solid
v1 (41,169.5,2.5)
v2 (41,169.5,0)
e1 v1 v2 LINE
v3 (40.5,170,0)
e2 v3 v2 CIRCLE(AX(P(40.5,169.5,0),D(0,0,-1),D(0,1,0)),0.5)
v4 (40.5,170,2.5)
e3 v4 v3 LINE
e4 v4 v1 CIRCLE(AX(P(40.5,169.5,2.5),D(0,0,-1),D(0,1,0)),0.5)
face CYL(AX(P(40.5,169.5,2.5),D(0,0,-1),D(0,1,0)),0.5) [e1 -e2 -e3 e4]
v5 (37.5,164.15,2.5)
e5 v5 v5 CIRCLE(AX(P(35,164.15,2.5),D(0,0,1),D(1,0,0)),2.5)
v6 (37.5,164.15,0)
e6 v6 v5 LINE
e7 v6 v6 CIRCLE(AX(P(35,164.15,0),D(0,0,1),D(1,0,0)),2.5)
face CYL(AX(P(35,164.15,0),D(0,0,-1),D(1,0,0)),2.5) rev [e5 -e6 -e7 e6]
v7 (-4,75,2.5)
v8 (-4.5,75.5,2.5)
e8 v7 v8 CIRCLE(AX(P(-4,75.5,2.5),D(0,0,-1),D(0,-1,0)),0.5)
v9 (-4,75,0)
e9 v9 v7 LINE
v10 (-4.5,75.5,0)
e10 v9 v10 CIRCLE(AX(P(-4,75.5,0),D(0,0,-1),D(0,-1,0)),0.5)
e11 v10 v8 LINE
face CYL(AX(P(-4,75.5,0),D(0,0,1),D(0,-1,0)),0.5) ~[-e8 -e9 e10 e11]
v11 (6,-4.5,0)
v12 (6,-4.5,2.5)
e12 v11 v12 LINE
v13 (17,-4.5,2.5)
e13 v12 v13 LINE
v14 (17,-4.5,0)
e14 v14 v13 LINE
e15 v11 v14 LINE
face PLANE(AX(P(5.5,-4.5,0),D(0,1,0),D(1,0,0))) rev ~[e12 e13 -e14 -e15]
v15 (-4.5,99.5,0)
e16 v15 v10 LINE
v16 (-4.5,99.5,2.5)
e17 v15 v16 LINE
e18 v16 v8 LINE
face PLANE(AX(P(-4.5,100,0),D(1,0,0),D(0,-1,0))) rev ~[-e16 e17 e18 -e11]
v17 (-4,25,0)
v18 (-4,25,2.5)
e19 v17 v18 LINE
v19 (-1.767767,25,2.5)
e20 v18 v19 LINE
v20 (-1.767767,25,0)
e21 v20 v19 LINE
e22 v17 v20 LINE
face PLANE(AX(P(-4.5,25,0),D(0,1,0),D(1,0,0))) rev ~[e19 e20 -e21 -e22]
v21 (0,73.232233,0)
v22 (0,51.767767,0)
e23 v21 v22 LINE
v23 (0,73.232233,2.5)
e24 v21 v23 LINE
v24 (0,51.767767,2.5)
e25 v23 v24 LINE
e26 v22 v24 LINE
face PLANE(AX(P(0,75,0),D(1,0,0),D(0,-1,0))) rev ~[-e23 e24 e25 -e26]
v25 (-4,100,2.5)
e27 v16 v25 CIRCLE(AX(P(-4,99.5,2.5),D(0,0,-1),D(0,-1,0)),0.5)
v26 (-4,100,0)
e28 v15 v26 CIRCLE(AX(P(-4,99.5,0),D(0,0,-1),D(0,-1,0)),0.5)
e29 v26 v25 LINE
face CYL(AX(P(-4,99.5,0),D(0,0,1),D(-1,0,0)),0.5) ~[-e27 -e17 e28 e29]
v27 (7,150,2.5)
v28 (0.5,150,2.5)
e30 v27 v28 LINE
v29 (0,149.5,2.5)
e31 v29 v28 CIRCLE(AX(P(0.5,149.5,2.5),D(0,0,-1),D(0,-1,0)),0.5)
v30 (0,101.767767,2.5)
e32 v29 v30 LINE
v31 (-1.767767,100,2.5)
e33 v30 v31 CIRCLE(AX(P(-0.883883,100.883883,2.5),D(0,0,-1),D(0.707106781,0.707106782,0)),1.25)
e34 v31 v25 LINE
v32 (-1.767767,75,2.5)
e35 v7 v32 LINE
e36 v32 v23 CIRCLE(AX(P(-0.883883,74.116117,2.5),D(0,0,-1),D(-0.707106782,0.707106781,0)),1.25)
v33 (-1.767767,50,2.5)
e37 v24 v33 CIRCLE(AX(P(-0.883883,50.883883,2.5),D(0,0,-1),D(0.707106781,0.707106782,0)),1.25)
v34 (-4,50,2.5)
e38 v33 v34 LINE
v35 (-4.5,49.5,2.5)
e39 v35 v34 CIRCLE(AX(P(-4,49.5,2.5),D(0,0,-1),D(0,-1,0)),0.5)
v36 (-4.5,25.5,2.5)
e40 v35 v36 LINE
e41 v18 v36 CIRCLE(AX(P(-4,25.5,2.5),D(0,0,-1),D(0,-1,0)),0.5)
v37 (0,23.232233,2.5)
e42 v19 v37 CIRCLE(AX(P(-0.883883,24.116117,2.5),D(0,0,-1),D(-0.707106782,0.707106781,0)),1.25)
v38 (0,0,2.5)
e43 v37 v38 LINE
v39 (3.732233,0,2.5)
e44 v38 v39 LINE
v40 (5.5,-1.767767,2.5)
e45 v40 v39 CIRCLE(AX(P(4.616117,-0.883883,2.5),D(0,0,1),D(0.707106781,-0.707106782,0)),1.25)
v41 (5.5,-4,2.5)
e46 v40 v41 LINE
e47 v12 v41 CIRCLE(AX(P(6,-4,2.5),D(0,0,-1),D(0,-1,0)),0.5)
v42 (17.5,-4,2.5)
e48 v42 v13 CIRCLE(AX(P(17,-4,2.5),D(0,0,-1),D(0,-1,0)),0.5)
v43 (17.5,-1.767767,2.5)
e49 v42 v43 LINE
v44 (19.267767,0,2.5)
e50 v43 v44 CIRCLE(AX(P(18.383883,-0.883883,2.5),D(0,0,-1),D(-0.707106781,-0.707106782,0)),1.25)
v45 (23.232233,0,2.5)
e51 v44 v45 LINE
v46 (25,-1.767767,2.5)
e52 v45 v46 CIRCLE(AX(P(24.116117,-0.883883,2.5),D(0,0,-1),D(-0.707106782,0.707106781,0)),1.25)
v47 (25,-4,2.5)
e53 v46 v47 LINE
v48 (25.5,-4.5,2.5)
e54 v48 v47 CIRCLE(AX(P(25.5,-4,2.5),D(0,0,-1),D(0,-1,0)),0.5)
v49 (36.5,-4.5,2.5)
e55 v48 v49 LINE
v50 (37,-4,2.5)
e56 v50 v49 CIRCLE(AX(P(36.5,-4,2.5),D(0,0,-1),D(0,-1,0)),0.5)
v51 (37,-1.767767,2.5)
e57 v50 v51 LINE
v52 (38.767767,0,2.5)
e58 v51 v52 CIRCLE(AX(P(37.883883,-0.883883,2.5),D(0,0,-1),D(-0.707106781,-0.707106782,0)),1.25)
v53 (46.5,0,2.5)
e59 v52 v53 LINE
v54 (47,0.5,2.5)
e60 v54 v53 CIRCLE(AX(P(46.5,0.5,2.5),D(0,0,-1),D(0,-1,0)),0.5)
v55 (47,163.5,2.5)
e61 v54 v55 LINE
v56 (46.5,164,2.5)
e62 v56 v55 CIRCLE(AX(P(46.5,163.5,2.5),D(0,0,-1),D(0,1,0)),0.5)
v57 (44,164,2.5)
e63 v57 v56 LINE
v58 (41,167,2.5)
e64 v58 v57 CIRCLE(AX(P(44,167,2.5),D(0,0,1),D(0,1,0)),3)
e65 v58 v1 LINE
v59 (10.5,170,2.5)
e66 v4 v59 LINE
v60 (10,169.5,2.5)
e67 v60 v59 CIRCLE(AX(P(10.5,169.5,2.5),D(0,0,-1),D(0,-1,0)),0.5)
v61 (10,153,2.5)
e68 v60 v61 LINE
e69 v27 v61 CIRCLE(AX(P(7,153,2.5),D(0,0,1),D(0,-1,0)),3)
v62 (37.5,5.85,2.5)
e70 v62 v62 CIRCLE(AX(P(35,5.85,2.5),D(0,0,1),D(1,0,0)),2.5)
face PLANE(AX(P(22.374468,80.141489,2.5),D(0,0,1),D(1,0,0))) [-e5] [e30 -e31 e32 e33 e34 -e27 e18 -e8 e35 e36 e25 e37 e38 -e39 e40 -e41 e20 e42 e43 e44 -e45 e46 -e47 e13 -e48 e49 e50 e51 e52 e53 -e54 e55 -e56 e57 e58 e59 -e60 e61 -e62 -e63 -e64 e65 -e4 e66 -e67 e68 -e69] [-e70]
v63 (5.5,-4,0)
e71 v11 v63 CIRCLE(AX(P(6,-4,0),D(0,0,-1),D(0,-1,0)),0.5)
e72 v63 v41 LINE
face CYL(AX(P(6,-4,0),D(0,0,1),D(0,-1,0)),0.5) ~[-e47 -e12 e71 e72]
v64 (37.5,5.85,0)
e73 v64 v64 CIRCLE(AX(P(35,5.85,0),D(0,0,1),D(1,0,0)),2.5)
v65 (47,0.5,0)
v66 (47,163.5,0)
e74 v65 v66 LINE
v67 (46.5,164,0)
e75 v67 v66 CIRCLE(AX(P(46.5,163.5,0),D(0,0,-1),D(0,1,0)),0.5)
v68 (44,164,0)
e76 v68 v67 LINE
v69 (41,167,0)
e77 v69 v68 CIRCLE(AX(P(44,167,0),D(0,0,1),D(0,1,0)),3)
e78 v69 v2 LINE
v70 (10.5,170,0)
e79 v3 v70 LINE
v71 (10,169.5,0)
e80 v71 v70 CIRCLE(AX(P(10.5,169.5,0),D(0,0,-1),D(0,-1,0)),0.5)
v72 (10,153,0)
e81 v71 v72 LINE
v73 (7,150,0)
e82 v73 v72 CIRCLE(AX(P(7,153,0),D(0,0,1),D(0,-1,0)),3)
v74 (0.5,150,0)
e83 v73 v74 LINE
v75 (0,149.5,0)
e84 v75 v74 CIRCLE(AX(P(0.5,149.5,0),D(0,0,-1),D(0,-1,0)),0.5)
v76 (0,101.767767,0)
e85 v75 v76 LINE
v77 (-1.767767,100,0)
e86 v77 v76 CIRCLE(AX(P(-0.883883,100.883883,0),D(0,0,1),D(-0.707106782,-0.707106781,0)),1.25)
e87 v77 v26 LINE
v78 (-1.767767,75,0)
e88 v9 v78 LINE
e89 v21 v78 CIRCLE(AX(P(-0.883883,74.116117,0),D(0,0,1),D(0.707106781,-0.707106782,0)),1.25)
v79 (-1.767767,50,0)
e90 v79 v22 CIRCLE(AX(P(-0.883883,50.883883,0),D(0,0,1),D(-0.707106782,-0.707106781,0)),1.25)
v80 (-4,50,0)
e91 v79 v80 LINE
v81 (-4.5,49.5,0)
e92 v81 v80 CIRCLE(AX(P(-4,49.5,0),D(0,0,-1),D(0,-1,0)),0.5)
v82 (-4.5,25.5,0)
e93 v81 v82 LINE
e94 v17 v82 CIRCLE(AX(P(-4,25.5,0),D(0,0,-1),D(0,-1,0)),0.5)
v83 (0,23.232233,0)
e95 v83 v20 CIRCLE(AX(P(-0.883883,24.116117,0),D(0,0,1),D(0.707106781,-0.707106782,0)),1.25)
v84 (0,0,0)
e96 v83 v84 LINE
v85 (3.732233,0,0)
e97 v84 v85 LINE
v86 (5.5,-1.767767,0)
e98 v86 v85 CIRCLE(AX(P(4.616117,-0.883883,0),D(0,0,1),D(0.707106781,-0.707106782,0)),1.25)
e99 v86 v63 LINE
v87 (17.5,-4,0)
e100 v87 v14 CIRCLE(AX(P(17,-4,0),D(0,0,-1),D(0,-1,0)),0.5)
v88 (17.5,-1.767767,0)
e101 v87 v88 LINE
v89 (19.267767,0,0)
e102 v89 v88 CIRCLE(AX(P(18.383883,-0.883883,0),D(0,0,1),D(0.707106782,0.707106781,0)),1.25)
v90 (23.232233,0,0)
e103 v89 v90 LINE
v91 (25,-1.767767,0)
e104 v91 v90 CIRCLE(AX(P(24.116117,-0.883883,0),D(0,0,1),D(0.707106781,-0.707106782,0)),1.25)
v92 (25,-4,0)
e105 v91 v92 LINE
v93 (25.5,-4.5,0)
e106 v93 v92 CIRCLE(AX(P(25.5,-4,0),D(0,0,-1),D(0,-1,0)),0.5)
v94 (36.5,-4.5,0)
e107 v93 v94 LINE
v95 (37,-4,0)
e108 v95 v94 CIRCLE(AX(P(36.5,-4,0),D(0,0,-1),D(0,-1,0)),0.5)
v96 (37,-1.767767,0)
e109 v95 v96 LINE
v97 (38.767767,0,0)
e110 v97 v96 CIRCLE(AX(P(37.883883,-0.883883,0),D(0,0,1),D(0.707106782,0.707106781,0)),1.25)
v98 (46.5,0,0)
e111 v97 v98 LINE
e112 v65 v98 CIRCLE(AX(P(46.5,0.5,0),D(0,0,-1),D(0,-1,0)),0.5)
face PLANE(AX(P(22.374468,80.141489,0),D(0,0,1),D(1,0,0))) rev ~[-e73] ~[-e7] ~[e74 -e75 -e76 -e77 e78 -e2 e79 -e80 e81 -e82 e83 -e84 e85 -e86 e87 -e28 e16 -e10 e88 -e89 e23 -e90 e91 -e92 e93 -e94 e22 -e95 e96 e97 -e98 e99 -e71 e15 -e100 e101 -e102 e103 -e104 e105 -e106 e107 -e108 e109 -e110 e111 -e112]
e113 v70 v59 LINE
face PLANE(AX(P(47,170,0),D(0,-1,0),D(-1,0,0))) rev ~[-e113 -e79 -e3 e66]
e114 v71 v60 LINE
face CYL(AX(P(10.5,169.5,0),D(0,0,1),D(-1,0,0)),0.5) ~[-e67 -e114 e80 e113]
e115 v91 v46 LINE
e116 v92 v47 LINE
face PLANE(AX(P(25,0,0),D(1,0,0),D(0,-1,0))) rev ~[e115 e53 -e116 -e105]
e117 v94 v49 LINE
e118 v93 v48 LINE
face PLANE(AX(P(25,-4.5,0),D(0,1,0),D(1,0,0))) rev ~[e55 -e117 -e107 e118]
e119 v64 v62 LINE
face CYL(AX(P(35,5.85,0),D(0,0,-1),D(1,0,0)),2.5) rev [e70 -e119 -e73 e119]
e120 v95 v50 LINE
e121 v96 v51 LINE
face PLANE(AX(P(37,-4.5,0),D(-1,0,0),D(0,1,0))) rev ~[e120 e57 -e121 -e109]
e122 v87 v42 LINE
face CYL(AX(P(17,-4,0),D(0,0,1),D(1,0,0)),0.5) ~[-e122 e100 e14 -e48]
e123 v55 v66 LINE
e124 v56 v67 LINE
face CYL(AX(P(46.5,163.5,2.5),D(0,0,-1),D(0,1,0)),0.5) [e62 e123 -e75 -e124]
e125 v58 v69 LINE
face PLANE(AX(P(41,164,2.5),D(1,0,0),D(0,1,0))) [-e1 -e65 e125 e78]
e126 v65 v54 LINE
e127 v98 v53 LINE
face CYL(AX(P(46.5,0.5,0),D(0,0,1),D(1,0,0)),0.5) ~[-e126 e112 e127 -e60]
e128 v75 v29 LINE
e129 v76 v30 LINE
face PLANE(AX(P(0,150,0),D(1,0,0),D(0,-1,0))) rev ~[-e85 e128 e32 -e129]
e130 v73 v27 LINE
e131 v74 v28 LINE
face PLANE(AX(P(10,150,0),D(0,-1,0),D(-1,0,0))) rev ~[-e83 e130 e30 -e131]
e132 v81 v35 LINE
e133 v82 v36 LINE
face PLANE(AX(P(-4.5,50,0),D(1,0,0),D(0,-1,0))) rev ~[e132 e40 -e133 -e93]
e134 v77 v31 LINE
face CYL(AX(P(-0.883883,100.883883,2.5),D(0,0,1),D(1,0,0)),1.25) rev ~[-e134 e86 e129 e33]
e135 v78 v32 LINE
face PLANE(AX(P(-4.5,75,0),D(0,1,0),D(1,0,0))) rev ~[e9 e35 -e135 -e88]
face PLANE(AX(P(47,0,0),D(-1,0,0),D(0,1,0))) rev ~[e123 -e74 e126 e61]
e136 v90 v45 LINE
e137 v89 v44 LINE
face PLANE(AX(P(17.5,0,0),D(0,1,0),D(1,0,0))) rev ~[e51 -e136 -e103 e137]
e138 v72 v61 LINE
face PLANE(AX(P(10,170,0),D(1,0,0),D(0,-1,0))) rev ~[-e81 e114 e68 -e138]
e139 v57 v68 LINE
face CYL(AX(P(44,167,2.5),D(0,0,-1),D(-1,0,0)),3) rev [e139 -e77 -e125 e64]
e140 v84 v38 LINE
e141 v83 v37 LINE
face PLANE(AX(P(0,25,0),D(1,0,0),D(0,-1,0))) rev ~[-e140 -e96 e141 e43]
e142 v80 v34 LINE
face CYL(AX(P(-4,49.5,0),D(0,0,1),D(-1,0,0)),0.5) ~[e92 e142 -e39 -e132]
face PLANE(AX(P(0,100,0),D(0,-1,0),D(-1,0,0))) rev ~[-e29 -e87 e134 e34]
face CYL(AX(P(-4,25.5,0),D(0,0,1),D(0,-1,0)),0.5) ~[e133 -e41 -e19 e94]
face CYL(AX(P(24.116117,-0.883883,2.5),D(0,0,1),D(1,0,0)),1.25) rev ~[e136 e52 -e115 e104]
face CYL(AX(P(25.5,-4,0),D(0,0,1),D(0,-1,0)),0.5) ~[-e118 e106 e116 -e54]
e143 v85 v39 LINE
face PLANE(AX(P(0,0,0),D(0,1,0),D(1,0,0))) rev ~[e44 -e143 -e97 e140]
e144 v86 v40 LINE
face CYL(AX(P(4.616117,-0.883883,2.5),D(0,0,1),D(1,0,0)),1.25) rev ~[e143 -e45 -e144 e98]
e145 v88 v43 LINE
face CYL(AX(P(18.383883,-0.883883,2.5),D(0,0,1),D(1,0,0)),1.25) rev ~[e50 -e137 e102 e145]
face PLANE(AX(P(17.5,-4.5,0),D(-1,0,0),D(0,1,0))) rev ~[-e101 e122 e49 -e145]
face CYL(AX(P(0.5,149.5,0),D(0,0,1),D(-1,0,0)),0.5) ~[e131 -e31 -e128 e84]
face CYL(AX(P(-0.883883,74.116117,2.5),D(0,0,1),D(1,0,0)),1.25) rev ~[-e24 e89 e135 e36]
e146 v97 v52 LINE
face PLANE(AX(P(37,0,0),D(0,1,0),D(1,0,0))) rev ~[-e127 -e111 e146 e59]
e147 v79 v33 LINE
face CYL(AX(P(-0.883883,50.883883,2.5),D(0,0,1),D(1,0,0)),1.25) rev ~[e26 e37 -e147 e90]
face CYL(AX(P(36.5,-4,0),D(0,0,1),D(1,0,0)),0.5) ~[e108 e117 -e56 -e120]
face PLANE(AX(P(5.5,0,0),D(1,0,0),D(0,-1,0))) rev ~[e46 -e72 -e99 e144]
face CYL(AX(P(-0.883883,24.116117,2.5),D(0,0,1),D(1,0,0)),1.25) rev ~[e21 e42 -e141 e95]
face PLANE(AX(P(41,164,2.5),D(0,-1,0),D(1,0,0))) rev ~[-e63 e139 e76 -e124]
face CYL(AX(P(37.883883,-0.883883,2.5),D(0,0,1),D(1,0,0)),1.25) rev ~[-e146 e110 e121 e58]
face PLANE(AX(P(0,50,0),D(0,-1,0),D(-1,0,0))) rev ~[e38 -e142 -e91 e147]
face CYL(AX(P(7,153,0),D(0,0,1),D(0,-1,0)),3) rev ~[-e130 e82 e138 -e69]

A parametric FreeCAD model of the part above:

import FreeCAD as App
import Part
import Sketcher
Q = App.Units.Quantity


def edges_at(feature, points):
    """Names of the edges that pass closest to the given points."""
    edges = feature.Shape.Edges
    near = lambda p: min(range(len(edges)), key=lambda i: edges[i].distToShape(Part.Vertex(*p))[0])
    return sorted({f"Edge{near(p) + 1}" for p in points})

doc = App.newDocument("Part")
body = doc.addObject("PartDesign::Body", "Body")

# Sketch on XY plane
sketch1 = doc.addObject("Sketcher::SketchObject", "Sketch")
body.addObject(sketch1)
sketch1.AttachmentSupport = (doc.XY_Plane, [""])
sketch1.MapMode = "FlatFace"
sketch1.addGeometry([
    Part.LineSegment(App.Vector(0, 0, 0), App.Vector(5.5, 0, 0)),  # 0
    Part.LineSegment(App.Vector(5.5, 0, 0), App.Vector(5.5, -4.5, 0)),  # 1
    Part.LineSegment(App.Vector(5.5, -4.5, 0), App.Vector(17.5, -4.5, 0)),  # 2
    Part.LineSegment(App.Vector(17.5, -4.5, 0), App.Vector(17.5, 0, 0)),  # 3
    Part.LineSegment(App.Vector(17.5, 0, 0), App.Vector(25, 0, 0)),  # 4
    Part.LineSegment(App.Vector(25, 0, 0), App.Vector(25, -4.5, 0)),  # 5
    Part.LineSegment(App.Vector(25, -4.5, 0), App.Vector(37, -4.5, 0)),  # 6
    Part.LineSegment(App.Vector(37, -4.5, 0), App.Vector(37, 0, 0)),  # 7
    Part.LineSegment(App.Vector(37, 0, 0), App.Vector(47, 0, 0)),  # 8
    Part.LineSegment(App.Vector(47, 0, 0), App.Vector(47, 170, 0)),  # 9
    Part.LineSegment(App.Vector(47, 170, 0), App.Vector(10, 170, 0)),  # 10
    Part.LineSegment(App.Vector(10, 170, 0), App.Vector(10, 150, 0)),  # 11
    Part.LineSegment(App.Vector(10, 150, 0), App.Vector(0, 150, 0)),  # 12
    Part.LineSegment(App.Vector(0, 150, 0), App.Vector(0, 100, 0)),  # 13
    Part.LineSegment(App.Vector(0, 100, 0), App.Vector(-4.5, 100, 0)),  # 14
    Part.LineSegment(App.Vector(-4.5, 100, 0), App.Vector(-4.5, 75, 0)),  # 15
    Part.LineSegment(App.Vector(-4.5, 75, 0), App.Vector(0, 75, 0)),  # 16
    Part.LineSegment(App.Vector(0, 75, 0), App.Vector(0, 50, 0)),  # 17
    Part.LineSegment(App.Vector(0, 50, 0), App.Vector(-4.5, 50, 0)),  # 18
    Part.LineSegment(App.Vector(-4.5, 50, 0), App.Vector(-4.5, 25, 0)),  # 19
    Part.LineSegment(App.Vector(-4.5, 25, 0), App.Vector(0, 25, 0)),  # 20
    Part.LineSegment(App.Vector(0, 25, 0), App.Vector(0, 0, 0)),  # 21
    Part.Circle(App.Vector(35, 5.8, 0), App.Vector(0, 0, 1), 2.5),  # 22
    Part.Circle(App.Vector(35, 164.2, 0), App.Vector(0, 0, 1), 2.5),  # 23
], False)
sketch1.addConstraint([
    Sketcher.Constraint("Coincident", 0, 2, 1, 1),
    Sketcher.Constraint("Coincident", 1, 2, 2, 1),
    Sketcher.Constraint("Coincident", 2, 2, 3, 1),
    Sketcher.Constraint("Coincident", 3, 2, 4, 1),
    Sketcher.Constraint("Coincident", 4, 2, 5, 1),
    Sketcher.Constraint("Coincident", 5, 2, 6, 1),
    Sketcher.Constraint("Coincident", 6, 2, 7, 1),
    Sketcher.Constraint("Coincident", 7, 2, 8, 1),
    Sketcher.Constraint("Coincident", 8, 2, 9, 1),
    Sketcher.Constraint("Coincident", 9, 2, 10, 1),
    Sketcher.Constraint("Coincident", 10, 2, 11, 1),
    Sketcher.Constraint("Coincident", 11, 2, 12, 1),
    Sketcher.Constraint("Coincident", 12, 2, 13, 1),
    Sketcher.Constraint("Coincident", 13, 2, 14, 1),
    Sketcher.Constraint("Coincident", 14, 2, 15, 1),
    Sketcher.Constraint("Coincident", 15, 2, 16, 1),
    Sketcher.Constraint("Coincident", 16, 2, 17, 1),
    Sketcher.Constraint("Coincident", 17, 2, 18, 1),
    Sketcher.Constraint("Coincident", 18, 2, 19, 1),
    Sketcher.Constraint("Coincident", 19, 2, 20, 1),
    Sketcher.Constraint("Coincident", 20, 2, 21, 1),
    Sketcher.Constraint("Coincident", 21, 2, 0, 1),
    Sketcher.Constraint("Horizontal", 0),
    Sketcher.Constraint("Vertical", 1),
    Sketcher.Constraint("Horizontal", 2),
    Sketcher.Constraint("Vertical", 3),
    Sketcher.Constraint("Horizontal", 4),
    Sketcher.Constraint("Vertical", 5),
    Sketcher.Constraint("Horizontal", 6),
    Sketcher.Constraint("Vertical", 7),
    Sketcher.Constraint("Horizontal", 8),
    Sketcher.Constraint("Vertical", 9),
    Sketcher.Constraint("Horizontal", 10),
    Sketcher.Constraint("Vertical", 11),
    Sketcher.Constraint("Horizontal", 12),
    Sketcher.Constraint("Vertical", 13),
    Sketcher.Constraint("Horizontal", 14),
    Sketcher.Constraint("Vertical", 15),
    Sketcher.Constraint("Horizontal", 16),
    Sketcher.Constraint("Vertical", 17),
    Sketcher.Constraint("Horizontal", 18),
    Sketcher.Constraint("Vertical", 19),
    Sketcher.Constraint("Horizontal", 20),
    Sketcher.Constraint("Vertical", 21),
    Sketcher.Constraint("Coincident", 21, 2, -1, 1),
    Sketcher.Constraint("Equal", 22, 23),
    Sketcher.Constraint("PointOnObject", 3, 2, -1),
    Sketcher.Constraint("PointOnObject", 7, 2, -1),
    Sketcher.Constraint("PointOnObject", 12, 2, -2),
    Sketcher.Constraint("PointOnObject", 16, 2, -2),
    Sketcher.Constraint("Horizontal", 2, 2, 5, 2),
    Sketcher.Constraint("Vertical", 22, 3, 23, 3),
    Sketcher.Constraint("Vertical", 15, 2, 18, 2),
    Sketcher.Constraint("Equal", 2, 6),
    Sketcher.Constraint("Equal", 8, 12),
    Sketcher.Constraint("Equal", 20, 1),
    Sketcher.Constraint("Equal", 15, 17),
    Sketcher.Constraint("Equal", 17, 19),
    Sketcher.Constraint("Equal", 19, 21),
    Sketcher.Constraint("Diameter", 22, Q("5 mm")),
    Sketcher.Constraint("DistanceX", 2, 1, 2, 2, Q("12 mm")),
    Sketcher.Constraint("DistanceX", 8, 1, 8, 2, Q("10 mm")),
    Sketcher.Constraint("DistanceX", 10, 2, 10, 1, Q("37 mm")),
    Sketcher.Constraint("DistanceY", 9, 1, 9, 2, Q("170 mm")),
    Sketcher.Constraint("DistanceY", 11, 2, 11, 1, Q("20 mm")),
    Sketcher.Constraint("DistanceY", 13, 2, 13, 1, Q("50 mm")),
    Sketcher.Constraint("DistanceX", 0, 1, 0, 2, Q("5.5 mm")),
    Sketcher.Constraint("DistanceX", 14, 2, 14, 1, Q("4.5 mm")),
    Sketcher.Constraint("DistanceX", -1, 1, 22, 3, Q("35 mm")),
    Sketcher.Constraint("DistanceY", 22, 3, 23, 3, Q("158.3 mm")),
    Sketcher.Constraint("DistanceY", -1, 1, 22, 3, Q("5.85 mm")),
])
pad1 = doc.addObject("PartDesign::Pad", "Pad")
body.addObject(pad1)
pad1.Profile = sketch1
pad1.Length = 2.5

# Sketch on XY plane
sketch2 = doc.addObject("Sketcher::SketchObject", "Sketch001")
body.addObject(sketch2)
sketch2.AttachmentSupport = (doc.XY_Plane, [""])
sketch2.MapMode = "FlatFace"
sketch2.AttachmentOffset = App.Placement(App.Vector(0, 0, 2.5), App.Rotation())
sketch2.addGeometry([
    Part.LineSegment(App.Vector(41, 170, 0), App.Vector(41, 164, 0)),
    Part.LineSegment(App.Vector(41, 164, 0), App.Vector(47, 164, 0)),
    Part.LineSegment(App.Vector(47, 164, 0), App.Vector(47, 170, 0)),
    Part.LineSegment(App.Vector(47, 170, 0), App.Vector(41, 170, 0)),
], False)
sketch2.addConstraint([
    Sketcher.Constraint("Coincident", 0, 2, 1, 1),
    Sketcher.Constraint("Coincident", 1, 2, 2, 1),
    Sketcher.Constraint("Coincident", 2, 2, 3, 1),
    Sketcher.Constraint("Coincident", 3, 2, 0, 1),
    Sketcher.Constraint("Vertical", 0),
    Sketcher.Constraint("Horizontal", 1),
    Sketcher.Constraint("Vertical", 2),
    Sketcher.Constraint("Horizontal", 3),
    Sketcher.Constraint("Equal", 3, 0),
    Sketcher.Constraint("DistanceX", 1, 1, 1, 2, Q("6 mm")),
    Sketcher.Constraint("DistanceX", -1, 1, 0, 2, Q("41 mm")),
    Sketcher.Constraint("DistanceY", -1, 1, 0, 2, Q("164 mm")),
])
pocket1 = doc.addObject("PartDesign::Pocket", "Pocket")
body.addObject(pocket1)
pocket1.Profile = sketch2
pocket1.Type = "ThroughAll"

# Sketch on XY plane
sketch3 = doc.addObject("Sketcher::SketchObject", "Sketch002")
body.addObject(sketch3)
sketch3.AttachmentSupport = (doc.XY_Plane, [""])
sketch3.MapMode = "FlatFace"
sketch3.AttachmentOffset = App.Placement(App.Vector(0, 0, 2.5), App.Rotation())
sketch3.addGeometry([
    Part.Circle(App.Vector(-0.9, 24.1, 0), App.Vector(0, 0, 1), 1.2),  # 0
    Part.Circle(App.Vector(-0.9, 50.9, 0), App.Vector(0, 0, 1), 1.2),  # 1
    Part.Circle(App.Vector(-0.9, 74.1, 0), App.Vector(0, 0, 1), 1.2),  # 2
    Part.Circle(App.Vector(-0.9, 100.9, 0), App.Vector(0, 0, 1), 1.2),  # 3
    Part.Circle(App.Vector(4.6, -0.9, 0), App.Vector(0, 0, 1), 1.2),  # 4
    Part.Circle(App.Vector(18.4, -0.9, 0), App.Vector(0, 0, 1), 1.2),  # 5
    Part.Circle(App.Vector(24.1, -0.9, 0), App.Vector(0, 0, 1), 1.2),  # 6
    Part.Circle(App.Vector(37.9, -0.9, 0), App.Vector(0, 0, 1), 1.2),  # 7
], False)
sketch3.addConstraint([
    Sketcher.Constraint("Equal", 0, 1),
    Sketcher.Constraint("Equal", 1, 2),
    Sketcher.Constraint("Equal", 2, 3),
    Sketcher.Constraint("Equal", 3, 4),
    Sketcher.Constraint("Equal", 4, 5),
    Sketcher.Constraint("Equal", 5, 6),
    Sketcher.Constraint("Equal", 6, 7),
    Sketcher.Constraint("Horizontal", 4, 3, 5, 3),
    Sketcher.Constraint("Horizontal", 5, 3, 6, 3),
    Sketcher.Constraint("Horizontal", 6, 3, 7, 3),
    Sketcher.Constraint("Vertical", 0, 3, 1, 3),
    Sketcher.Constraint("Vertical", 1, 3, 2, 3),
    Sketcher.Constraint("Vertical", 2, 3, 3, 3),
    Sketcher.Constraint("Diameter", 0, Q("2.5 mm")),
    Sketcher.Constraint("DistanceY", 0, 3, 2, 3, Q("50 mm")),
    Sketcher.Constraint("DistanceY", 1, 3, 3, 3, Q("50 mm")),
    Sketcher.Constraint("DistanceY", 4, 3, 0, 3, Q("25 mm")),
    Sketcher.Constraint("DistanceX", 0, 3, 6, 3, Q("25 mm")),
    Sketcher.Constraint("DistanceX", 0, 3, 4, 3, Q("5.5 mm")),
    Sketcher.Constraint("DistanceX", 5, 3, 7, 3, Q("19.5 mm")),
    Sketcher.Constraint("DistanceX", 0, 3, -1, 1, Q("0.883883 mm")),
    Sketcher.Constraint("DistanceY", -1, 1, 0, 3, Q("24.116117 mm")),
    Sketcher.Constraint("DistanceY", -1, 1, 1, 3, Q("50.883883 mm")),
    Sketcher.Constraint("DistanceX", -1, 1, 5, 3, Q("18.383883 mm")),
])
pocket2 = doc.addObject("PartDesign::Pocket", "Pocket001")
body.addObject(pocket2)
pocket2.Profile = sketch3
pocket2.Type = "ThroughAll"
doc.recompute()

fillet = doc.addObject("PartDesign::Fillet", "Fillet")
body.addObject(fillet)
fillet.Base = (pocket2, edges_at(pocket2, [
    (-4.5, 25, 1.25),
    (-4.5, 50, 1.25),
    (-4.5, 75, 1.25),
    (-4.5, 100, 1.25),
    (0, 150, 1.25),
    (10, 170, 1.25),
    (47, 0, 1.25),
    (37, -4.5, 1.25),
    (25, -4.5, 1.25),
    (17.5, -4.5, 1.25),
    (5.5, -4.5, 1.25),
    (41, 170, 1.25),
    (47, 164, 1.25),
]))
fillet.Radius = 0.5
doc.recompute()

fillet2 = doc.addObject("PartDesign::Fillet", "Fillet001")
body.addObject(fillet2)
fillet2.Base = (fillet, edges_at(fillet, [(10, 150, 1.25), (41, 164, 1.25)]))
fillet2.Radius = 3

doc.recompute()
